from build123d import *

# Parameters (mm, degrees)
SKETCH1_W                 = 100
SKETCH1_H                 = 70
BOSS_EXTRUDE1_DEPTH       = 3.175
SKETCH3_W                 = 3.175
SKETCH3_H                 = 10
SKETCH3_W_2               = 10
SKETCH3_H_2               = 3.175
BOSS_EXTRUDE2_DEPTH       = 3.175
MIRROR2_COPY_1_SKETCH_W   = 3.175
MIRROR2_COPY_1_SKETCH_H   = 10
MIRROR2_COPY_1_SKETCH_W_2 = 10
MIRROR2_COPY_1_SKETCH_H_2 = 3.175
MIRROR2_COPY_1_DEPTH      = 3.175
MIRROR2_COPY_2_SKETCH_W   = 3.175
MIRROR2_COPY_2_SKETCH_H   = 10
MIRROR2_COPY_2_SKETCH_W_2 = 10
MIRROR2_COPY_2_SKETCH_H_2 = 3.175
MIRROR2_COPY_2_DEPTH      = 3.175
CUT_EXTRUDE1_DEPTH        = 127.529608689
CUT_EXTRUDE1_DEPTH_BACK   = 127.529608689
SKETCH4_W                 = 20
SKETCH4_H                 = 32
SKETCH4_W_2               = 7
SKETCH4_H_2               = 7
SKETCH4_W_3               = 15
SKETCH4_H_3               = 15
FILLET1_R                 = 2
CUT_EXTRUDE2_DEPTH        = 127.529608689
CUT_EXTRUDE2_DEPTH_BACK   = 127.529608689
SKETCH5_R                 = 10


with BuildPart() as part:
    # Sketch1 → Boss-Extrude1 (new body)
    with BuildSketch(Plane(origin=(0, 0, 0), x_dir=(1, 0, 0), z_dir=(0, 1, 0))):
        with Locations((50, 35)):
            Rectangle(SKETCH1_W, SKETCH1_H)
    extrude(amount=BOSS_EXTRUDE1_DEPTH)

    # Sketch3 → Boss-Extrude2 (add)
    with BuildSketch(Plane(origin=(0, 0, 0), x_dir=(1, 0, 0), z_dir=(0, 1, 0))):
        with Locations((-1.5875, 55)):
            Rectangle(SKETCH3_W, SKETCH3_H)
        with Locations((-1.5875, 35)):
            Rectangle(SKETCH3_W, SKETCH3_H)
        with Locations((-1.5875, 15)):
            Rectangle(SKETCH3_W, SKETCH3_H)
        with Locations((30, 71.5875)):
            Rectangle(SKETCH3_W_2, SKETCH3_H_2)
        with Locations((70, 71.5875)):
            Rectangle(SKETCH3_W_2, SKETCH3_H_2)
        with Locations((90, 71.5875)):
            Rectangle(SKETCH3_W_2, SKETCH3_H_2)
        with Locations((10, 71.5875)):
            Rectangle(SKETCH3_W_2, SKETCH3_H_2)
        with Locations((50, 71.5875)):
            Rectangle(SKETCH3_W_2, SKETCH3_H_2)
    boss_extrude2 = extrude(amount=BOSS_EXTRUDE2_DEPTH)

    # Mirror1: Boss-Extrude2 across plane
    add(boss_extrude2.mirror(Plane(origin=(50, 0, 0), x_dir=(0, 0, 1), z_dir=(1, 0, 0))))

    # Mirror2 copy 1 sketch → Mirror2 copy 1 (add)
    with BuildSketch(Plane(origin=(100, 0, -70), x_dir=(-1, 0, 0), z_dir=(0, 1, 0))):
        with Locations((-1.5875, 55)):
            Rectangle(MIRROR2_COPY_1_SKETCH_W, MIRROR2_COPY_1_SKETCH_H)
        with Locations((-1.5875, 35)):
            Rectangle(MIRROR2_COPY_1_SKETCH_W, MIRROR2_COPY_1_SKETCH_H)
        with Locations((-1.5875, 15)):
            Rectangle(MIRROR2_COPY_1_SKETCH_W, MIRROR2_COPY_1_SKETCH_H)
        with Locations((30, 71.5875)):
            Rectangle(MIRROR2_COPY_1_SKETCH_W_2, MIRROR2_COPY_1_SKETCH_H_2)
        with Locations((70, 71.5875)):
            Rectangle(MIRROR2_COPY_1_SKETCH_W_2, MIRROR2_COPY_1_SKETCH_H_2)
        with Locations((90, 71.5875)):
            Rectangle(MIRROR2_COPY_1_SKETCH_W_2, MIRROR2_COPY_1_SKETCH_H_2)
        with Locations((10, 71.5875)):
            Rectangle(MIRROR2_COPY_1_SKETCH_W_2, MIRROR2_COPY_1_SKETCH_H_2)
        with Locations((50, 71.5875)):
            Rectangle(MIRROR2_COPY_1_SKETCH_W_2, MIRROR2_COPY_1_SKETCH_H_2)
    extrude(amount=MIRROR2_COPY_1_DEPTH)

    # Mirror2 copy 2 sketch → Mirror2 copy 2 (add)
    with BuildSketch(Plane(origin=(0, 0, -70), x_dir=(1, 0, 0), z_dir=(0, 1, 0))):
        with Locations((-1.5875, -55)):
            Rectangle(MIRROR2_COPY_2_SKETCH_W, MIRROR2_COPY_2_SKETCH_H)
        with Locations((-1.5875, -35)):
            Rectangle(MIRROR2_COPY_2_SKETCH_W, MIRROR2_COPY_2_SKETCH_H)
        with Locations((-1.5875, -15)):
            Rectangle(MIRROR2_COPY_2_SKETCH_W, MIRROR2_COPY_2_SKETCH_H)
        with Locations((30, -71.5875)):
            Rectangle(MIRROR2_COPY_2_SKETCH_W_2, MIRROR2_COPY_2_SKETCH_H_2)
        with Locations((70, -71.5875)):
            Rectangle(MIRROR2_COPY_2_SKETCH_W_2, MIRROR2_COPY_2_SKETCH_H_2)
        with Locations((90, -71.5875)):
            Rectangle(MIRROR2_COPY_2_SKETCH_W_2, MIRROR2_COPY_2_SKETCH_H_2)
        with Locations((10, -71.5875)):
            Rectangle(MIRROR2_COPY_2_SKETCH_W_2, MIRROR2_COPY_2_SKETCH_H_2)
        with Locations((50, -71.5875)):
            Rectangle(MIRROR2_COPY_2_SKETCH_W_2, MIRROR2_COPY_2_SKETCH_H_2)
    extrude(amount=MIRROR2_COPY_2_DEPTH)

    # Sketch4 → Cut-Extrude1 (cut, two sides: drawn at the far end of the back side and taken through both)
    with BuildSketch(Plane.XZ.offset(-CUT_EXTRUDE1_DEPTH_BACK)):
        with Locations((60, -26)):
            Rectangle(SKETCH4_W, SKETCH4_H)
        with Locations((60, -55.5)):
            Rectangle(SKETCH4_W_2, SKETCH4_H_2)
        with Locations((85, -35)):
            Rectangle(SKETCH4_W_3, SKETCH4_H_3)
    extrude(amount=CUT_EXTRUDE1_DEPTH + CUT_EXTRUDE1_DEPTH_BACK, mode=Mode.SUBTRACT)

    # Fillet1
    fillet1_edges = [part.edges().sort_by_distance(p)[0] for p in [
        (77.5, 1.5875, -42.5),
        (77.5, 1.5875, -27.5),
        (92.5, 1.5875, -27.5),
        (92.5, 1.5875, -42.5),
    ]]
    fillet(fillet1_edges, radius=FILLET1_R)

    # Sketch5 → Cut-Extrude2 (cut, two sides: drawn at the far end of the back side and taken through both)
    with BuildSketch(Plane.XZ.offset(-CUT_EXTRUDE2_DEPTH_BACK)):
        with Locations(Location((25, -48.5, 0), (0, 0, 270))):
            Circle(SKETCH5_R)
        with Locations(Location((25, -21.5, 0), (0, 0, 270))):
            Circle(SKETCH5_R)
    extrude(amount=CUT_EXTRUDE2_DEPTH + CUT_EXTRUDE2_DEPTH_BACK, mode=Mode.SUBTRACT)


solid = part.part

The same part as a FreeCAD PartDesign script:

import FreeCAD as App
import Part
import Sketcher
from FreeCAD import Vector


def edges_at(feature, points):
    """Names of the edges that pass closest to the given points."""
    edges = feature.Shape.Edges
    near = lambda p: min(range(len(edges)), key=lambda i: edges[i].distToShape(Part.Vertex(*p))[0])
    return sorted({f"Edge{near(p) + 1}" for p in points})

doc = App.newDocument("Part")
body = doc.addObject("PartDesign::Body", "Body")

# Sketch on XZ plane
sketch1 = doc.addObject("Sketcher::SketchObject", "Sketch")
body.addObject(sketch1)
sketch1.AttachmentSupport = (doc.XZ_Plane, [""])
sketch1.MapMode = "FlatFace"
sketch1.addGeometry(Part.LineSegment(Vector(0, -70, 0), Vector(0, 0, 0)), False)
sketch1.addGeometry(Part.LineSegment(Vector(0, 0, 0), Vector(100, 0, 0)), False)
sketch1.addGeometry(Part.LineSegment(Vector(100, 0, 0), Vector(100, -70, 0)), False)
sketch1.addGeometry(Part.LineSegment(Vector(100, -70, 0), Vector(0, -70, 0)), False)
sketch1.addConstraint(Sketcher.Constraint("Coincident", 0, 2, 1, 1))
sketch1.addConstraint(Sketcher.Constraint("Coincident", 1, 2, 2, 1))
sketch1.addConstraint(Sketcher.Constraint("Coincident", 2, 2, 3, 1))
sketch1.addConstraint(Sketcher.Constraint("Coincident", 3, 2, 0, 1))
sketch1.addConstraint(Sketcher.Constraint("Vertical", 0))
sketch1.addConstraint(Sketcher.Constraint("Horizontal", 1))
sketch1.addConstraint(Sketcher.Constraint("Vertical", 2))
sketch1.addConstraint(Sketcher.Constraint("Horizontal", 3))
sketch1.addConstraint(Sketcher.Constraint("Coincident", 0, 2, -1, 1))
sketch1.addConstraint(Sketcher.Constraint("DistanceX", 1, 1, 1, 2, 100.0))
sketch1.addConstraint(Sketcher.Constraint("DistanceY", 0, 1, 0, 2, 70.0))
pad1 = doc.addObject("PartDesign::Pad", "Pad")
body.addObject(pad1)
pad1.Profile = sketch1
pad1.Length = 3.175
pad1.Reversed = True

# Sketch on XZ plane
sketch2 = doc.addObject("Sketcher::SketchObject", "Sketch001")
body.addObject(sketch2)
sketch2.AttachmentSupport = (doc.XZ_Plane, [""])
sketch2.MapMode = "FlatFace"
sketch2.addGeometry(Part.LineSegment(Vector(-3.2, -60, 0), Vector(-3.2, -50, 0)), False)
sketch2.addGeometry(Part.LineSegment(Vector(-3.2, -50, 0), Vector(0, -50, 0)), False)
sketch2.addGeometry(Part.LineSegment(Vector(0, -50, 0), Vector(0, -60, 0)), False)
sketch2.addGeometry(Part.LineSegment(Vector(0, -60, 0), Vector(-3.2, -60, 0)), False)
sketch2.addGeometry(Part.LineSegment(Vector(-3.2, -40, 0), Vector(-3.2, -30, 0)), False)
sketch2.addGeometry(Part.LineSegment(Vector(-3.2, -30, 0), Vector(0, -30, 0)), False)
sketch2.addGeometry(Part.LineSegment(Vector(0, -30, 0), Vector(0, -40, 0)), False)
sketch2.addGeometry(Part.LineSegment(Vector(0, -40, 0), Vector(-3.2, -40, 0)), False)
sketch2.addGeometry(Part.LineSegment(Vector(-3.2, -20, 0), Vector(-3.2, -10, 0)), False)
sketch2.addGeometry(Part.LineSegment(Vector(-3.2, -10, 0), Vector(0, -10, 0)), False)
sketch2.addGeometry(Part.LineSegment(Vector(0, -10, 0), Vector(0, -20, 0)), False)
sketch2.addGeometry(Part.LineSegment(Vector(0, -20, 0), Vector(-3.2, -20, 0)), False)
sketch2.addGeometry(Part.LineSegment(Vector(25, -73.2, 0), Vector(25, -70, 0)), False)
sketch2.addGeometry(Part.LineSegment(Vector(25, -70, 0), Vector(35, -70, 0)), False)
sketch2.addGeometry(Part.LineSegment(Vector(35, -70, 0), Vector(35, -73.2, 0)), False)
sketch2.addGeometry(Part.LineSegment(Vector(35, -73.2, 0), Vector(25, -73.2, 0)), False)
sketch2.addGeometry(Part.LineSegment(Vector(65, -73.2, 0), Vector(65, -70, 0)), False)
sketch2.addGeometry(Part.LineSegment(Vector(65, -70, 0), Vector(75, -70, 0)), False)
sketch2.addGeometry(Part.LineSegment(Vector(75, -70, 0), Vector(75, -73.2, 0)), False)
sketch2.addGeometry(Part.LineSegment(Vector(75, -73.2, 0), Vector(65, -73.2, 0)), False)
sketch2.addGeometry(Part.LineSegment(Vector(85, -73.2, 0), Vector(85, -70, 0)), False)
sketch2.addGeometry(Part.LineSegment(Vector(85, -70, 0), Vector(95, -70, 0)), False)
sketch2.addGeometry(Part.LineSegment(Vector(95, -70, 0), Vector(95, -73.2, 0)), False)
sketch2.addGeometry(Part.LineSegment(Vector(95, -73.2, 0), Vector(85, -73.2, 0)), False)
sketch2.addGeometry(Part.LineSegment(Vector(5, -73.2, 0), Vector(5, -70, 0)), False)
sketch2.addGeometry(Part.LineSegment(Vector(5, -70, 0), Vector(15, -70, 0)), False)
sketch2.addGeometry(Part.LineSegment(Vector(15, -70, 0), Vector(15, -73.2, 0)), False)
sketch2.addGeometry(Part.LineSegment(Vector(15, -73.2, 0), Vector(5, -73.2, 0)), False)
sketch2.addGeometry(Part.LineSegment(Vector(45, -73.2, 0), Vector(45, -70, 0)), False)
sketch2.addGeometry(Part.LineSegment(Vector(45, -70, 0), Vector(55, -70, 0)), False)
sketch2.addGeometry(Part.LineSegment(Vector(55, -70, 0), Vector(55, -73.2, 0)), False)
sketch2.addGeometry(Part.LineSegment(Vector(55, -73.2, 0), Vector(45, -73.2, 0)), False)
sketch2.addConstraint(Sketcher.Constraint("Coincident", 0, 2, 1, 1))
sketch2.addConstraint(Sketcher.Constraint("Coincident", 1, 2, 2, 1))
sketch2.addConstraint(Sketcher.Constraint("Coincident", 2, 2, 3, 1))
sketch2.addConstraint(Sketcher.Constraint("Coincident", 3, 2, 0, 1))
sketch2.addConstraint(Sketcher.Constraint("Coincident", 4, 2, 5, 1))
sketch2.addConstraint(Sketcher.Constraint("Coincident", 5, 2, 6, 1))
sketch2.addConstraint(Sketcher.Constraint("Coincident", 6, 2, 7, 1))
sketch2.addConstraint(Sketcher.Constraint("Coincident", 7, 2, 4, 1))
sketch2.addConstraint(Sketcher.Constraint("Coincident", 8, 2, 9, 1))
sketch2.addConstraint(Sketcher.Constraint("Coincident", 9, 2, 10, 1))
sketch2.addConstraint(Sketcher.Constraint("Coincident", 10, 2, 11, 1))
sketch2.addConstraint(Sketcher.Constraint("Coincident", 11, 2, 8, 1))
sketch2.addConstraint(Sketcher.Constraint("Coincident", 12, 2, 13, 1))
sketch2.addConstraint(Sketcher.Constraint("Coincident", 13, 2, 14, 1))
sketch2.addConstraint(Sketcher.Constraint("Coincident", 14, 2, 15, 1))
sketch2.addConstraint(Sketcher.Constraint("Coincident", 15, 2, 12, 1))
sketch2.addConstraint(Sketcher.Constraint("Coincident", 16, 2, 17, 1))
sketch2.addConstraint(Sketcher.Constraint("Coincident", 17, 2, 18, 1))
sketch2.addConstraint(Sketcher.Constraint("Coincident", 18, 2, 19, 1))
sketch2.addConstraint(Sketcher.Constraint("Coincident", 19, 2, 16, 1))
sketch2.addConstraint(Sketcher.Constraint("Coincident", 20, 2, 21, 1))
sketch2.addConstraint(Sketcher.Constraint("Coincident", 21, 2, 22, 1))
sketch2.addConstraint(Sketcher.Constraint("Coincident", 22, 2, 23, 1))
sketch2.addConstraint(Sketcher.Constraint("Coincident", 23, 2, 20, 1))
sketch2.addConstraint(Sketcher.Constraint("Coincident", 24, 2, 25, 1))
sketch2.addConstraint(Sketcher.Constraint("Coincident", 25, 2, 26, 1))
sketch2.addConstraint(Sketcher.Constraint("Coincident", 26, 2, 27, 1))
sketch2.addConstraint(Sketcher.Constraint("Coincident", 27, 2, 24, 1))
sketch2.addConstraint(Sketcher.Constraint("Coincident", 28, 2, 29, 1))
sketch2.addConstraint(Sketcher.Constraint("Coincident", 29, 2, 30, 1))
sketch2.addConstraint(Sketcher.Constraint("Coincident", 30, 2, 31, 1))
sketch2.addConstraint(Sketcher.Constraint("Coincident", 31, 2, 28, 1))
sketch2.addConstraint(Sketcher.Constraint("Vertical", 0))
sketch2.addConstraint(Sketcher.Constraint("Horizontal", 1))
sketch2.addConstraint(Sketcher.Constraint("Vertical", 2))
sketch2.addConstraint(Sketcher.Constraint("Horizontal", 3))
sketch2.addConstraint(Sketcher.Constraint("Vertical", 4))
sketch2.addConstraint(Sketcher.Constraint("Horizontal", 5))
sketch2.addConstraint(Sketcher.Constraint("Vertical", 6))
sketch2.addConstraint(Sketcher.Constraint("Horizontal", 7))
sketch2.addConstraint(Sketcher.Constraint("Vertical", 8))
sketch2.addConstraint(Sketcher.Constraint("Horizontal", 9))
sketch2.addConstraint(Sketcher.Constraint("Vertical", 10))
sketch2.addConstraint(Sketcher.Constraint("Horizontal", 11))
sketch2.addConstraint(Sketcher.Constraint("Vertical", 12))
sketch2.addConstraint(Sketcher.Constraint("Horizontal", 13))
sketch2.addConstraint(Sketcher.Constraint("Vertical", 14))
sketch2.addConstraint(Sketcher.Constraint("Horizontal", 15))
sketch2.addConstraint(Sketcher.Constraint("Vertical", 16))
sketch2.addConstraint(Sketcher.Constraint("Horizontal", 17))
sketch2.addConstraint(Sketcher.Constraint("Vertical", 18))
sketch2.addConstraint(Sketcher.Constraint("Horizontal", 19))
sketch2.addConstraint(Sketcher.Constraint("Vertical", 20))
sketch2.addConstraint(Sketcher.Constraint("Horizontal", 21))
sketch2.addConstraint(Sketcher.Constraint("Vertical", 22))
sketch2.addConstraint(Sketcher.Constraint("Horizontal", 23))
sketch2.addConstraint(Sketcher.Constraint("Vertical", 24))
sketch2.addConstraint(Sketcher.Constraint("Horizontal", 25))
sketch2.addConstraint(Sketcher.Constraint("Vertical", 26))
sketch2.addConstraint(Sketcher.Constraint("Horizontal", 27))
sketch2.addConstraint(Sketcher.Constraint("Vertical", 28))
sketch2.addConstraint(Sketcher.Constraint("Horizontal", 29))
sketch2.addConstraint(Sketcher.Constraint("Vertical", 30))
sketch2.addConstraint(Sketcher.Constraint("Horizontal", 31))
sketch2.addConstraint(Sketcher.Constraint("PointOnObject", 1, 2, -2))
sketch2.addConstraint(Sketcher.Constraint("PointOnObject", 5, 2, -2))
sketch2.addConstraint(Sketcher.Constraint("PointOnObject", 9, 2, -2))
sketch2.addConstraint(Sketcher.Constraint("Horizontal", 13, 2, 16, 2))
sketch2.addConstraint(Sketcher.Constraint("Horizontal", 15, 2, 18, 2))
sketch2.addConstraint(Sketcher.Constraint("Horizontal", 17, 2, 20, 2))
sketch2.addConstraint(Sketcher.Constraint("Horizontal", 19, 2, 22, 2))
sketch2.addConstraint(Sketcher.Constraint("Horizontal", 21, 2, 24, 2))
sketch2.addConstraint(Sketcher.Constraint("Horizontal", 23, 2, 26, 2))
sketch2.addConstraint(Sketcher.Constraint("Horizontal", 25, 2, 28, 2))
sketch2.addConstraint(Sketcher.Constraint("Horizontal", 27, 2, 30, 2))
sketch2.addConstraint(Sketcher.Constraint("Vertical", 3, 2, 4, 2))
sketch2.addConstraint(Sketcher.Constraint("Vertical", 7, 2, 8, 2))
sketch2.addConstraint(Sketcher.Constraint("Equal", 15, 17))
sketch2.addConstraint(Sketcher.Constraint("Equal", 19, 21))
sketch2.addConstraint(Sketcher.Constraint("Equal", 23, 25))
sketch2.addConstraint(Sketcher.Constraint("Equal", 27, 29))
sketch2.addConstraint(Sketcher.Constraint("Equal", 31, 0))
sketch2.addConstraint(Sketcher.Constraint("Equal", 2, 4))
sketch2.addConstraint(Sketcher.Constraint("Equal", 6, 8))
sketch2.addConstraint(Sketcher.Constraint("Equal", 11, 12))
sketch2.addConstraint(Sketcher.Constraint("DistanceX", 13, 1, 13, 2, 10.0))
sketch2.addConstraint(Sketcher.Constraint("DistanceY", 0, 2, -1, 1, 50.0))
sketch2.addConstraint(Sketcher.Constraint("DistanceY", 4, 2, -1, 1, 30.0))
sketch2.addConstraint(Sketcher.Constraint("DistanceY", 8, 2, -1, 1, 10.0))
sketch2.addConstraint(Sketcher.Constraint("DistanceX", -1, 1, 12, 2, 25.0))
sketch2.addConstraint(Sketcher.Constraint("DistanceY", 12, 2, -1, 1, 70.0))
sketch2.addConstraint(Sketcher.Constraint("DistanceX", -1, 1, 16, 2, 65.0))
sketch2.addConstraint(Sketcher.Constraint("DistanceX", -1, 1, 20, 2, 85.0))
sketch2.addConstraint(Sketcher.Constraint("DistanceX", -1, 1, 24, 2, 5.0))
sketch2.addConstraint(Sketcher.Constraint("DistanceX", -1, 1, 28, 2, 45.0))
sketch2.addConstraint(Sketcher.Constraint("DistanceX", 1, 1, 1, 2, 3.175))
pad2 = doc.addObject("PartDesign::Pad", "Pad001")
body.addObject(pad2)
pad2.Profile = sketch2
pad2.Length = 3.175
pad2.Reversed = True
doc.recompute()

datumplane = doc.addObject("PartDesign::Plane", "DatumPlane")
body.addObject(datumplane)
datumplane.AttachmentSupport = (doc.YZ_Plane, [""])
datumplane.MapMode = "FlatFace"
datumplane.AttachmentOffset = App.Placement(Vector(0, 0, 50), App.Rotation())
mirrored = doc.addObject("PartDesign::Mirrored", "Mirrored")
body.addObject(mirrored)
mirrored.Originals = [pad2]
mirrored.MirrorPlane = (datumplane, [""])
body.Tip = mirrored

# Sketch on XZ plane
sketch3 = doc.addObject("Sketcher::SketchObject", "Sketch002")
body.addObject(sketch3)
sketch3.AttachmentSupport = (doc.XZ_Plane, [""])
sketch3.MapMode = "FlatFace"
sketch3.addGeometry(Part.LineSegment(Vector(103.2, -10, 0), Vector(103.2, -20, 0)), False)
sketch3.addGeometry(Part.LineSegment(Vector(103.2, -20, 0), Vector(100, -20, 0)), False)
sketch3.addGeometry(Part.LineSegment(Vector(100, -20, 0), Vector(100, -10, 0)), False)
sketch3.addGeometry(Part.LineSegment(Vector(100, -10, 0), Vector(103.2, -10, 0)), False)
sketch3.addGeometry(Part.LineSegment(Vector(103.2, -30, 0), Vector(103.2, -40, 0)), False)
sketch3.addGeometry(Part.LineSegment(Vector(103.2, -40, 0), Vector(100, -40, 0)), False)
sketch3.addGeometry(Part.LineSegment(Vector(100, -40, 0), Vector(100, -30, 0)), False)
sketch3.addGeometry(Part.LineSegment(Vector(100, -30, 0), Vector(103.2, -30, 0)), False)
sketch3.addGeometry(Part.LineSegment(Vector(103.2, -50, 0), Vector(103.2, -60, 0)), False)
sketch3.addGeometry(Part.LineSegment(Vector(103.2, -60, 0), Vector(100, -60, 0)), False)
sketch3.addGeometry(Part.LineSegment(Vector(100, -60, 0), Vector(100, -50, 0)), False)
sketch3.addGeometry(Part.LineSegment(Vector(100, -50, 0), Vector(103.2, -50, 0)), False)
sketch3.addGeometry(Part.LineSegment(Vector(75, 3.2, 0), Vector(75, 0, 0)), False)
sketch3.addGeometry(Part.LineSegment(Vector(75, 0, 0), Vector(65, 0, 0)), False)
sketch3.addGeometry(Part.LineSegment(Vector(65, 0, 0), Vector(65, 3.2, 0)), False)
sketch3.addGeometry(Part.LineSegment(Vector(65, 3.2, 0), Vector(75, 3.2, 0)), False)
sketch3.addGeometry(Part.LineSegment(Vector(35, 3.2, 0), Vector(35, 0, 0)), False)
sketch3.addGeometry(Part.LineSegment(Vector(35, 0, 0), Vector(25, 0, 0)), False)
sketch3.addGeometry(Part.LineSegment(Vector(25, 0, 0), Vector(25, 3.2, 0)), False)
sketch3.addGeometry(Part.LineSegment(Vector(25, 3.2, 0), Vector(35, 3.2, 0)), False)
sketch3.addGeometry(Part.LineSegment(Vector(15, 3.2, 0), Vector(15, 0, 0)), False)
sketch3.addGeometry(Part.LineSegment(Vector(15, 0, 0), Vector(5, 0, 0)), False)
sketch3.addGeometry(Part.LineSegment(Vector(5, 0, 0), Vector(5, 3.2, 0)), False)
sketch3.addGeometry(Part.LineSegment(Vector(5, 3.2, 0), Vector(15, 3.2, 0)), False)
sketch3.addGeometry(Part.LineSegment(Vector(95, 3.2, 0), Vector(95, 0, 0)), False)
sketch3.addGeometry(Part.LineSegment(Vector(95, 0, 0), Vector(85, 0, 0)), False)
sketch3.addGeometry(Part.LineSegment(Vector(85, 0, 0), Vector(85, 3.2, 0)), False)
sketch3.addGeometry(Part.LineSegment(Vector(85, 3.2, 0), Vector(95, 3.2, 0)), False)
sketch3.addGeometry(Part.LineSegment(Vector(55, 3.2, 0), Vector(55, 0, 0)), False)
sketch3.addGeometry(Part.LineSegment(Vector(55, 0, 0), Vector(45, 0, 0)), False)
sketch3.addGeometry(Part.LineSegment(Vector(45, 0, 0), Vector(45, 3.2, 0)), False)
sketch3.addGeometry(Part.LineSegment(Vector(45, 3.2, 0), Vector(55, 3.2, 0)), False)
sketch3.addConstraint(Sketcher.Constraint("Coincident", 0, 2, 1, 1))
sketch3.addConstraint(Sketcher.Constraint("Coincident", 1, 2, 2, 1))
sketch3.addConstraint(Sketcher.Constraint("Coincident", 2, 2, 3, 1))
sketch3.addConstraint(Sketcher.Constraint("Coincident", 3, 2, 0, 1))
sketch3.addConstraint(Sketcher.Constraint("Coincident", 4, 2, 5, 1))
sketch3.addConstraint(Sketcher.Constraint("Coincident", 5, 2, 6, 1))
sketch3.addConstraint(Sketcher.Constraint("Coincident", 6, 2, 7, 1))
sketch3.addConstraint(Sketcher.Constraint("Coincident", 7, 2, 4, 1))
sketch3.addConstraint(Sketcher.Constraint("Coincident", 8, 2, 9, 1))
sketch3.addConstraint(Sketcher.Constraint("Coincident", 9, 2, 10, 1))
sketch3.addConstraint(Sketcher.Constraint("Coincident", 10, 2, 11, 1))
sketch3.addConstraint(Sketcher.Constraint("Coincident", 11, 2, 8, 1))
sketch3.addConstraint(Sketcher.Constraint("Coincident", 12, 2, 13, 1))
sketch3.addConstraint(Sketcher.Constraint("Coincident", 13, 2, 14, 1))
sketch3.addConstraint(Sketcher.Constraint("Coincident", 14, 2, 15, 1))
sketch3.addConstraint(Sketcher.Constraint("Coincident", 15, 2, 12, 1))
sketch3.addConstraint(Sketcher.Constraint("Coincident", 16, 2, 17, 1))
sketch3.addConstraint(Sketcher.Constraint("Coincident", 17, 2, 18, 1))
sketch3.addConstraint(Sketcher.Constraint("Coincident", 18, 2, 19, 1))
sketch3.addConstraint(Sketcher.Constraint("Coincident", 19, 2, 16, 1))
sketch3.addConstraint(Sketcher.Constraint("Coincident", 20, 2, 21, 1))
sketch3.addConstraint(Sketcher.Constraint("Coincident", 21, 2, 22, 1))
sketch3.addConstraint(Sketcher.Constraint("Coincident", 22, 2, 23, 1))
sketch3.addConstraint(Sketcher.Constraint("Coincident", 23, 2, 20, 1))
sketch3.addConstraint(Sketcher.Constraint("Coincident", 24, 2, 25, 1))
sketch3.addConstraint(Sketcher.Constraint("Coincident", 25, 2, 26, 1))
sketch3.addConstraint(Sketcher.Constraint("Coincident", 26, 2, 27, 1))
sketch3.addConstraint(Sketcher.Constraint("Coincident", 27, 2, 24, 1))
sketch3.addConstraint(Sketcher.Constraint("Coincident", 28, 2, 29, 1))
sketch3.addConstraint(Sketcher.Constraint("Coincident", 29, 2, 30, 1))
sketch3.addConstraint(Sketcher.Constraint("Coincident", 30, 2, 31, 1))
sketch3.addConstraint(Sketcher.Constraint("Coincident", 31, 2, 28, 1))
sketch3.addConstraint(Sketcher.Constraint("Vertical", 0))
sketch3.addConstraint(Sketcher.Constraint("Horizontal", 1))
sketch3.addConstraint(Sketcher.Constraint("Vertical", 2))
sketch3.addConstraint(Sketcher.Constraint("Horizontal", 3))
sketch3.addConstraint(Sketcher.Constraint("Vertical", 4))
sketch3.addConstraint(Sketcher.Constraint("Horizontal", 5))
sketch3.addConstraint(Sketcher.Constraint("Vertical", 6))
sketch3.addConstraint(Sketcher.Constraint("Horizontal", 7))
sketch3.addConstraint(Sketcher.Constraint("Vertical", 8))
sketch3.addConstraint(Sketcher.Constraint("Horizontal", 9))
sketch3.addConstraint(Sketcher.Constraint("Vertical", 10))
sketch3.addConstraint(Sketcher.Constraint("Horizontal", 11))
sketch3.addConstraint(Sketcher.Constraint("Vertical", 12))
sketch3.addConstraint(Sketcher.Constraint("Horizontal", 13))
sketch3.addConstraint(Sketcher.Constraint("Vertical", 14))
sketch3.addConstraint(Sketcher.Constraint("Horizontal", 15))
sketch3.addConstraint(Sketcher.Constraint("Vertical", 16))
sketch3.addConstraint(Sketcher.Constraint("Horizontal", 17))
sketch3.addConstraint(Sketcher.Constraint("Vertical", 18))
sketch3.addConstraint(Sketcher.Constraint("Horizontal", 19))
sketch3.addConstraint(Sketcher.Constraint("Vertical", 20))
sketch3.addConstraint(Sketcher.Constraint("Horizontal", 21))
sketch3.addConstraint(Sketcher.Constraint("Vertical", 22))
sketch3.addConstraint(Sketcher.Constraint("Horizontal", 23))
sketch3.addConstraint(Sketcher.Constraint("Vertical", 24))
sketch3.addConstraint(Sketcher.Constraint("Horizontal", 25))
sketch3.addConstraint(Sketcher.Constraint("Vertical", 26))
sketch3.addConstraint(Sketcher.Constraint("Horizontal", 27))
sketch3.addConstraint(Sketcher.Constraint("Vertical", 28))
sketch3.addConstraint(Sketcher.Constraint("Horizontal", 29))
sketch3.addConstraint(Sketcher.Constraint("Vertical", 30))
sketch3.addConstraint(Sketcher.Constraint("Horizontal", 31))
sketch3.addConstraint(Sketcher.Constraint("PointOnObject", 12, 2, -1))
sketch3.addConstraint(Sketcher.Constraint("PointOnObject", 16, 2, -1))
sketch3.addConstraint(Sketcher.Constraint("PointOnObject", 20, 2, -1))
sketch3.addConstraint(Sketcher.Constraint("PointOnObject", 24, 2, -1))
sketch3.addConstraint(Sketcher.Constraint("PointOnObject", 28, 2, -1))
sketch3.addConstraint(Sketcher.Constraint("Horizontal", 15, 2, 18, 2))
sketch3.addConstraint(Sketcher.Constraint("Horizontal", 19, 2, 22, 2))
sketch3.addConstraint(Sketcher.Constraint("Horizontal", 23, 2, 26, 2))
sketch3.addConstraint(Sketcher.Constraint("Horizontal", 27, 2, 30, 2))
sketch3.addConstraint(Sketcher.Constraint("Vertical", 3, 2, 4, 2))
sketch3.addConstraint(Sketcher.Constraint("Vertical", 2, 2, 5, 2))
sketch3.addConstraint(Sketcher.Constraint("Vertical", 7, 2, 8, 2))
sketch3.addConstraint(Sketcher.Constraint("Vertical", 6, 2, 9, 2))
sketch3.addConstraint(Sketcher.Constraint("Equal", 15, 17))
sketch3.addConstraint(Sketcher.Constraint("Equal", 19, 21))
sketch3.addConstraint(Sketcher.Constraint("Equal", 23, 25))
sketch3.addConstraint(Sketcher.Constraint("Equal", 27, 29))
sketch3.addConstraint(Sketcher.Constraint("Equal", 31, 0))
sketch3.addConstraint(Sketcher.Constraint("Equal", 2, 4))
sketch3.addConstraint(Sketcher.Constraint("Equal", 6, 8))
sketch3.addConstraint(Sketcher.Constraint("Equal", 11, 12))
sketch3.addConstraint(Sketcher.Constraint("DistanceX", 13, 2, 13, 1, 10.0))
sketch3.addConstraint(Sketcher.Constraint("DistanceY", 0, 2, -1, 1, 20.0))
sketch3.addConstraint(Sketcher.Constraint("DistanceX", -1, 1, 1, 2, 100.0))
sketch3.addConstraint(Sketcher.Constraint("DistanceY", 4, 2, -1, 1, 40.0))
sketch3.addConstraint(Sketcher.Constraint("DistanceY", 8, 2, -1, 1, 60.0))
sketch3.addConstraint(Sketcher.Constraint("DistanceX", -1, 1, 12, 2, 75.0))
sketch3.addConstraint(Sketcher.Constraint("DistanceX", -1, 1, 16, 2, 35.0))
sketch3.addConstraint(Sketcher.Constraint("DistanceX", -1, 1, 20, 2, 15.0))
sketch3.addConstraint(Sketcher.Constraint("DistanceX", -1, 1, 24, 2, 95.0))
sketch3.addConstraint(Sketcher.Constraint("DistanceX", -1, 1, 28, 2, 55.0))
sketch3.addConstraint(Sketcher.Constraint("DistanceX", 1, 2, 1, 1, 3.175))
pad3 = doc.addObject("PartDesign::Pad", "Pad002")
body.addObject(pad3)
pad3.Profile = sketch3
pad3.Length = 3.175
pad3.Reversed = True

# Sketch on XZ plane
sketch4 = doc.addObject("Sketcher::SketchObject", "Sketch003")
body.addObject(sketch4)
sketch4.AttachmentSupport = (doc.XZ_Plane, [""])
sketch4.MapMode = "FlatFace"
sketch4.addGeometry(Part.LineSegment(Vector(-3.2, -20, 0), Vector(-3.2, -10, 0)), False)
sketch4.addGeometry(Part.LineSegment(Vector(-3.2, -10, 0), Vector(0, -10, 0)), False)
sketch4.addGeometry(Part.LineSegment(Vector(0, -10, 0), Vector(0, -20, 0)), False)
sketch4.addGeometry(Part.LineSegment(Vector(0, -20, 0), Vector(-3.2, -20, 0)), False)
sketch4.addGeometry(Part.LineSegment(Vector(-3.2, -40, 0), Vector(-3.2, -30, 0)), False)
sketch4.addGeometry(Part.LineSegment(Vector(-3.2, -30, 0), Vector(0, -30, 0)), False)
sketch4.addGeometry(Part.LineSegment(Vector(0, -30, 0), Vector(0, -40, 0)), False)
sketch4.addGeometry(Part.LineSegment(Vector(0, -40, 0), Vector(-3.2, -40, 0)), False)
sketch4.addGeometry(Part.LineSegment(Vector(-3.2, -60, 0), Vector(-3.2, -50, 0)), False)
sketch4.addGeometry(Part.LineSegment(Vector(-3.2, -50, 0), Vector(0, -50, 0)), False)
sketch4.addGeometry(Part.LineSegment(Vector(0, -50, 0), Vector(0, -60, 0)), False)
sketch4.addGeometry(Part.LineSegment(Vector(0, -60, 0), Vector(-3.2, -60, 0)), False)
sketch4.addGeometry(Part.LineSegment(Vector(25, 0, 0), Vector(25, 3.2, 0)), False)
sketch4.addGeometry(Part.LineSegment(Vector(25, 3.2, 0), Vector(35, 3.2, 0)), False)
sketch4.addGeometry(Part.LineSegment(Vector(35, 3.2, 0), Vector(35, 0, 0)), False)
sketch4.addGeometry(Part.LineSegment(Vector(35, 0, 0), Vector(25, 0, 0)), False)
sketch4.addGeometry(Part.LineSegment(Vector(65, 0, 0), Vector(65, 3.2, 0)), False)
sketch4.addGeometry(Part.LineSegment(Vector(65, 3.2, 0), Vector(75, 3.2, 0)), False)
sketch4.addGeometry(Part.LineSegment(Vector(75, 3.2, 0), Vector(75, 0, 0)), False)
sketch4.addGeometry(Part.LineSegment(Vector(75, 0, 0), Vector(65, 0, 0)), False)
sketch4.addGeometry(Part.LineSegment(Vector(85, 0, 0), Vector(85, 3.2, 0)), False)
sketch4.addGeometry(Part.LineSegment(Vector(85, 3.2, 0), Vector(95, 3.2, 0)), False)
sketch4.addGeometry(Part.LineSegment(Vector(95, 3.2, 0), Vector(95, 0, 0)), False)
sketch4.addGeometry(Part.LineSegment(Vector(95, 0, 0), Vector(85, 0, 0)), False)
sketch4.addGeometry(Part.LineSegment(Vector(5, 0, 0), Vector(5, 3.2, 0)), False)
sketch4.addGeometry(Part.LineSegment(Vector(5, 3.2, 0), Vector(15, 3.2, 0)), False)
sketch4.addGeometry(Part.LineSegment(Vector(15, 3.2, 0), Vector(15, 0, 0)), False)
sketch4.addGeometry(Part.LineSegment(Vector(15, 0, 0), Vector(5, 0, 0)), False)
sketch4.addGeometry(Part.LineSegment(Vector(45, 0, 0), Vector(45, 3.2, 0)), False)
sketch4.addGeometry(Part.LineSegment(Vector(45, 3.2, 0), Vector(55, 3.2, 0)), False)
sketch4.addGeometry(Part.LineSegment(Vector(55, 3.2, 0), Vector(55, 0, 0)), False)
sketch4.addGeometry(Part.LineSegment(Vector(55, 0, 0), Vector(45, 0, 0)), False)
sketch4.addConstraint(Sketcher.Constraint("Coincident", 0, 2, 1, 1))
sketch4.addConstraint(Sketcher.Constraint("Coincident", 1, 2, 2, 1))
sketch4.addConstraint(Sketcher.Constraint("Coincident", 2, 2, 3, 1))
sketch4.addConstraint(Sketcher.Constraint("Coincident", 3, 2, 0, 1))
sketch4.addConstraint(Sketcher.Constraint("Coincident", 4, 2, 5, 1))
sketch4.addConstraint(Sketcher.Constraint("Coincident", 5, 2, 6, 1))
sketch4.addConstraint(Sketcher.Constraint("Coincident", 6, 2, 7, 1))
sketch4.addConstraint(Sketcher.Constraint("Coincident", 7, 2, 4, 1))
sketch4.addConstraint(Sketcher.Constraint("Coincident", 8, 2, 9, 1))
sketch4.addConstraint(Sketcher.Constraint("Coincident", 9, 2, 10, 1))
sketch4.addConstraint(Sketcher.Constraint("Coincident", 10, 2, 11, 1))
sketch4.addConstraint(Sketcher.Constraint("Coincident", 11, 2, 8, 1))
sketch4.addConstraint(Sketcher.Constraint("Coincident", 12, 2, 13, 1))
sketch4.addConstraint(Sketcher.Constraint("Coincident", 13, 2, 14, 1))
sketch4.addConstraint(Sketcher.Constraint("Coincident", 14, 2, 15, 1))
sketch4.addConstraint(Sketcher.Constraint("Coincident", 15, 2, 12, 1))
sketch4.addConstraint(Sketcher.Constraint("Coincident", 16, 2, 17, 1))
sketch4.addConstraint(Sketcher.Constraint("Coincident", 17, 2, 18, 1))
sketch4.addConstraint(Sketcher.Constraint("Coincident", 18, 2, 19, 1))
sketch4.addConstraint(Sketcher.Constraint("Coincident", 19, 2, 16, 1))
sketch4.addConstraint(Sketcher.Constraint("Coincident", 20, 2, 21, 1))
sketch4.addConstraint(Sketcher.Constraint("Coincident", 21, 2, 22, 1))
sketch4.addConstraint(Sketcher.Constraint("Coincident", 22, 2, 23, 1))
sketch4.addConstraint(Sketcher.Constraint("Coincident", 23, 2, 20, 1))
sketch4.addConstraint(Sketcher.Constraint("Coincident", 24, 2, 25, 1))
sketch4.addConstraint(Sketcher.Constraint("Coincident", 25, 2, 26, 1))
sketch4.addConstraint(Sketcher.Constraint("Coincident", 26, 2, 27, 1))
sketch4.addConstraint(Sketcher.Constraint("Coincident", 27, 2, 24, 1))
sketch4.addConstraint(Sketcher.Constraint("Coincident", 28, 2, 29, 1))
sketch4.addConstraint(Sketcher.Constraint("Coincident", 29, 2, 30, 1))
sketch4.addConstraint(Sketcher.Constraint("Coincident", 30, 2, 31, 1))
sketch4.addConstraint(Sketcher.Constraint("Coincident", 31, 2, 28, 1))
sketch4.addConstraint(Sketcher.Constraint("Vertical", 0))
sketch4.addConstraint(Sketcher.Constraint("Horizontal", 1))
sketch4.addConstraint(Sketcher.Constraint("Vertical", 2))
sketch4.addConstraint(Sketcher.Constraint("Horizontal", 3))
sketch4.addConstraint(Sketcher.Constraint("Vertical", 4))
sketch4.addConstraint(Sketcher.Constraint("Horizontal", 5))
sketch4.addConstraint(Sketcher.Constraint("Vertical", 6))
sketch4.addConstraint(Sketcher.Constraint("Horizontal", 7))
sketch4.addConstraint(Sketcher.Constraint("Vertical", 8))
sketch4.addConstraint(Sketcher.Constraint("Horizontal", 9))
sketch4.addConstraint(Sketcher.Constraint("Vertical", 10))
sketch4.addConstraint(Sketcher.Constraint("Horizontal", 11))
sketch4.addConstraint(Sketcher.Constraint("Vertical", 12))
sketch4.addConstraint(Sketcher.Constraint("Horizontal", 13))
sketch4.addConstraint(Sketcher.Constraint("Vertical", 14))
sketch4.addConstraint(Sketcher.Constraint("Horizontal", 15))
sketch4.addConstraint(Sketcher.Constraint("Vertical", 16))
sketch4.addConstraint(Sketcher.Constraint("Horizontal", 17))
sketch4.addConstraint(Sketcher.Constraint("Vertical", 18))
sketch4.addConstraint(Sketcher.Constraint("Horizontal", 19))
sketch4.addConstraint(Sketcher.Constraint("Vertical", 20))
sketch4.addConstraint(Sketcher.Constraint("Horizontal", 21))
sketch4.addConstraint(Sketcher.Constraint("Vertical", 22))
sketch4.addConstraint(Sketcher.Constraint("Horizontal", 23))
sketch4.addConstraint(Sketcher.Constraint("Vertical", 24))
sketch4.addConstraint(Sketcher.Constraint("Horizontal", 25))
sketch4.addConstraint(Sketcher.Constraint("Vertical", 26))
sketch4.addConstraint(Sketcher.Constraint("Horizontal", 27))
sketch4.addConstraint(Sketcher.Constraint("Vertical", 28))
sketch4.addConstraint(Sketcher.Constraint("Horizontal", 29))
sketch4.addConstraint(Sketcher.Constraint("Vertical", 30))
sketch4.addConstraint(Sketcher.Constraint("Horizontal", 31))
sketch4.addConstraint(Sketcher.Constraint("PointOnObject", 1, 2, -2))
sketch4.addConstraint(Sketcher.Constraint("PointOnObject", 5, 2, -2))
sketch4.addConstraint(Sketcher.Constraint("PointOnObject", 9, 2, -2))
sketch4.addConstraint(Sketcher.Constraint("PointOnObject", 14, 2, -1))
sketch4.addConstraint(Sketcher.Constraint("PointOnObject", 18, 2, -1))
sketch4.addConstraint(Sketcher.Constraint("PointOnObject", 22, 2, -1))
sketch4.addConstraint(Sketcher.Constraint("PointOnObject", 26, 2, -1))
sketch4.addConstraint(Sketcher.Constraint("PointOnObject", 30, 2, -1))
sketch4.addConstraint(Sketcher.Constraint("Horizontal", 13, 2, 16, 2))
sketch4.addConstraint(Sketcher.Constraint("Horizontal", 17, 2, 20, 2))
sketch4.addConstraint(Sketcher.Constraint("Horizontal", 21, 2, 24, 2))
sketch4.addConstraint(Sketcher.Constraint("Horizontal", 25, 2, 28, 2))
sketch4.addConstraint(Sketcher.Constraint("Vertical", 3, 2, 4, 2))
sketch4.addConstraint(Sketcher.Constraint("Vertical", 7, 2, 8, 2))
sketch4.addConstraint(Sketcher.Constraint("Equal", 15, 17))
sketch4.addConstraint(Sketcher.Constraint("Equal", 19, 21))
sketch4.addConstraint(Sketcher.Constraint("Equal", 23, 25))
sketch4.addConstraint(Sketcher.Constraint("Equal", 27, 29))
sketch4.addConstraint(Sketcher.Constraint("Equal", 31, 0))
sketch4.addConstraint(Sketcher.Constraint("Equal", 2, 4))
sketch4.addConstraint(Sketcher.Constraint("Equal", 6, 8))
sketch4.addConstraint(Sketcher.Constraint("Equal", 11, 12))
sketch4.addConstraint(Sketcher.Constraint("DistanceX", 13, 1, 13, 2, 10.0))
sketch4.addConstraint(Sketcher.Constraint("DistanceY", 0, 2, -1, 1, 10.0))
sketch4.addConstraint(Sketcher.Constraint("DistanceY", 4, 2, -1, 1, 30.0))
sketch4.addConstraint(Sketcher.Constraint("DistanceY", 8, 2, -1, 1, 50.0))
sketch4.addConstraint(Sketcher.Constraint("DistanceX", -1, 1, 12, 2, 25.0))
sketch4.addConstraint(Sketcher.Constraint("DistanceX", -1, 1, 16, 2, 65.0))
sketch4.addConstraint(Sketcher.Constraint("DistanceX", -1, 1, 20, 2, 85.0))
sketch4.addConstraint(Sketcher.Constraint("DistanceX", -1, 1, 24, 2, 5.0))
sketch4.addConstraint(Sketcher.Constraint("DistanceX", -1, 1, 28, 2, 45.0))
sketch4.addConstraint(Sketcher.Constraint("DistanceX", 1, 1, 1, 2, 3.175))
pad4 = doc.addObject("PartDesign::Pad", "Pad003")
body.addObject(pad4)
pad4.Profile = sketch4
pad4.Length = 3.175
pad4.Reversed = True

# Sketch on XZ plane
sketch5 = doc.addObject("Sketcher::SketchObject", "Sketch004")
body.addObject(sketch5)
sketch5.AttachmentSupport = (doc.XZ_Plane, [""])
sketch5.MapMode = "FlatFace"
sketch5.addGeometry(Part.LineSegment(Vector(50, -10, 0), Vector(50, -42, 0)), False)
sketch5.addGeometry(Part.LineSegment(Vector(50, -42, 0), Vector(70, -42, 0)), False)
sketch5.addGeometry(Part.LineSegment(Vector(70, -42, 0), Vector(70, -10, 0)), False)
sketch5.addGeometry(Part.LineSegment(Vector(70, -10, 0), Vector(50, -10, 0)), False)
sketch5.addGeometry(Part.LineSegment(Vector(56, -52, 0), Vector(56, -59, 0)), False)
sketch5.addGeometry(Part.LineSegment(Vector(56, -59, 0), Vector(64, -59, 0)), False)
sketch5.addGeometry(Part.LineSegment(Vector(64, -59, 0), Vector(64, -52, 0)), False)
sketch5.addGeometry(Part.LineSegment(Vector(64, -52, 0), Vector(56, -52, 0)), False)
sketch5.addGeometry(Part.LineSegment(Vector(78, -28, 0), Vector(78, -42, 0)), False)
sketch5.addGeometry(Part.LineSegment(Vector(78, -42, 0), Vector(92, -42, 0)), False)
sketch5.addGeometry(Part.LineSegment(Vector(92, -42, 0), Vector(92, -28, 0)), False)
sketch5.addGeometry(Part.LineSegment(Vector(92, -28, 0), Vector(78, -28, 0)), False)
sketch5.addConstraint(Sketcher.Constraint("Coincident", 0, 2, 1, 1))
sketch5.addConstraint(Sketcher.Constraint("Coincident", 1, 2, 2, 1))
sketch5.addConstraint(Sketcher.Constraint("Coincident", 2, 2, 3, 1))
sketch5.addConstraint(Sketcher.Constraint("Coincident", 3, 2, 0, 1))
sketch5.addConstraint(Sketcher.Constraint("Coincident", 4, 2, 5, 1))
sketch5.addConstraint(Sketcher.Constraint("Coincident", 5, 2, 6, 1))
sketch5.addConstraint(Sketcher.Constraint("Coincident", 6, 2, 7, 1))
sketch5.addConstraint(Sketcher.Constraint("Coincident", 7, 2, 4, 1))
sketch5.addConstraint(Sketcher.Constraint("Coincident", 8, 2, 9, 1))
sketch5.addConstraint(Sketcher.Constraint("Coincident", 9, 2, 10, 1))
sketch5.addConstraint(Sketcher.Constraint("Coincident", 10, 2, 11, 1))
sketch5.addConstraint(Sketcher.Constraint("Coincident", 11, 2, 8, 1))
sketch5.addConstraint(Sketcher.Constraint("Vertical", 0))
sketch5.addConstraint(Sketcher.Constraint("Horizontal", 1))
sketch5.addConstraint(Sketcher.Constraint("Vertical", 2))
sketch5.addConstraint(Sketcher.Constraint("Horizontal", 3))
sketch5.addConstraint(Sketcher.Constraint("Vertical", 4))
sketch5.addConstraint(Sketcher.Constraint("Horizontal", 5))
sketch5.addConstraint(Sketcher.Constraint("Vertical", 6))
sketch5.addConstraint(Sketcher.Constraint("Horizontal", 7))
sketch5.addConstraint(Sketcher.Constraint("Vertical", 8))
sketch5.addConstraint(Sketcher.Constraint("Horizontal", 9))
sketch5.addConstraint(Sketcher.Constraint("Vertical", 10))
sketch5.addConstraint(Sketcher.Constraint("Horizontal", 11))
sketch5.addConstraint(Sketcher.Constraint("Equal", 7, 4))
sketch5.addConstraint(Sketcher.Constraint("Equal", 11, 8))
sketch5.addConstraint(Sketcher.Constraint("DistanceX", 1, 1, 1, 2, 20.0))
sketch5.addConstraint(Sketcher.Constraint("DistanceX", 5, 1, 5, 2, 7.0))
sketch5.addConstraint(Sketcher.Constraint("DistanceX", 9, 1, 9, 2, 15.0))
sketch5.addConstraint(Sketcher.Constraint("DistanceY", 0, 2, 0, 1, 32.0))
sketch5.addConstraint(Sketcher.Constraint("DistanceX", -1, 1, 0, 2, 50.0))
sketch5.addConstraint(Sketcher.Constraint("DistanceY", 0, 2, -1, 1, 42.0))
sketch5.addConstraint(Sketcher.Constraint("DistanceY", 4, 2, -1, 1, 59.0))
sketch5.addConstraint(Sketcher.Constraint("DistanceX", 6, 2, 8, 2, 14.0))
sketch5.addConstraint(Sketcher.Constraint("DistanceX", -1, 1, 4, 2, 56.5))
sketch5.addConstraint(Sketcher.Constraint("DistanceY", 8, 2, -1, 1, 42.5))
pocket1 = doc.addObject("PartDesign::Pocket", "Pocket")
body.addObject(pocket1)
pocket1.Profile = sketch5
pocket1.Type = "ThroughAll"
pocket1.Midplane = True
doc.recompute()

fillet = doc.addObject("PartDesign::Fillet", "Fillet")
body.addObject(fillet)
fillet.Base = (pocket1, edges_at(pocket1, [
    (77.5, 1.587, -42.5),
    (77.5, 1.587, -27.5),
    (92.5, 1.587, -27.5),
    (92.5, 1.587, -42.5),
]))
fillet.Radius = 2

# Sketch on XZ plane
sketch6 = doc.addObject("Sketcher::SketchObject", "Sketch005")
body.addObject(sketch6)
sketch6.AttachmentSupport = (doc.XZ_Plane, [""])
sketch6.MapMode = "FlatFace"
sketch6.addGeometry(Part.Circle(Vector(25, -48, 0), Vector(0, 0, 1), 10), False)
sketch6.addGeometry(Part.Circle(Vector(25, -22, 0), Vector(0, 0, 1), 10), False)
sketch6.addConstraint(Sketcher.Constraint("Equal", 0, 1))
sketch6.addConstraint(Sketcher.Constraint("Vertical", 0, 3, 1, 3))
sketch6.addConstraint(Sketcher.Constraint("Diameter", 0, 20.0))
sketch6.addConstraint(Sketcher.Constraint("DistanceX", -1, 1, 0, 3, 25.0))
sketch6.addConstraint(Sketcher.Constraint("DistanceY", 0, 3, 1, 3, 27.0))
sketch6.addConstraint(Sketcher.Constraint("DistanceY", 0, 3, -1, 1, 48.5))
pocket2 = doc.addObject("PartDesign::Pocket", "Pocket001")
body.addObject(pocket2)
pocket2.Profile = sketch6
pocket2.Type = "ThroughAll"
pocket2.Midplane = True

doc.recompute()
